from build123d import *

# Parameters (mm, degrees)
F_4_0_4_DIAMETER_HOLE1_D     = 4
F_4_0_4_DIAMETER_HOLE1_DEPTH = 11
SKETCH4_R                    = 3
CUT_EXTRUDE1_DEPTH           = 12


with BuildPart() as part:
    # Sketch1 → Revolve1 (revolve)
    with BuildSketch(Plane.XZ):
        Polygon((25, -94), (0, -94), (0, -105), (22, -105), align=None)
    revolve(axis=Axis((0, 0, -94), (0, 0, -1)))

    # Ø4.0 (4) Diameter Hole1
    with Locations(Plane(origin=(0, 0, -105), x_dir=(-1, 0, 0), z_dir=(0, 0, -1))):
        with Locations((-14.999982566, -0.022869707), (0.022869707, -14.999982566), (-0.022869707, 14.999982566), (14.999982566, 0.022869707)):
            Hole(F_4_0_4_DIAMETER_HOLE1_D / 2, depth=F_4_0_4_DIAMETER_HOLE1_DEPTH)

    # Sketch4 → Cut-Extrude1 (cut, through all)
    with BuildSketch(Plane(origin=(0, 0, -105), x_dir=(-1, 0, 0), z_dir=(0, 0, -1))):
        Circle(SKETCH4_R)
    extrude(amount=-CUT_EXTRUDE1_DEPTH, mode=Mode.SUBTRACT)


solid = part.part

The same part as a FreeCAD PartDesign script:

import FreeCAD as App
import Part
import Sketcher

V = App.Vector


def add_polygon(sketch, points):
    """Adds a closed chain of lines whose ends are joined by coincident constraints."""
    first, n = sketch.GeometryCount, len(points)
    for a, b in zip(points, points[1:] + points[:1]):
        sketch.addGeometry(Part.LineSegment(App.Vector(*a, 0), App.Vector(*b, 0)), False)
    for i in range(n):
        sketch.addConstraint(Sketcher.Constraint("Coincident", first + i, 2, first + (i + 1) % n, 1))

doc = App.newDocument("Part")
body = doc.addObject("PartDesign::Body", "Body")

sketch1 = body.newObject("Sketcher::SketchObject", "Sketch")
sketch1.AttachmentSupport = (doc.getObject("XZ_Plane"), [""])
sketch1.MapMode = "FlatFace"
add_polygon(sketch1, [(25, -94), (0, -94), (0, -105), (22, -105)])
sketch1.addConstraint([
    Sketcher.Constraint("Horizontal", 0),
    Sketcher.Constraint("Vertical", 1),
    Sketcher.Constraint("Horizontal", 2),
    Sketcher.Constraint("PointOnObject", 0, 2, -2),
    Sketcher.Constraint("DistanceX", 0, 2, 0, 1, 25.0),
    Sketcher.Constraint("DistanceX", 2, 1, 2, 2, 22.0),
    Sketcher.Constraint("DistanceY", 1, 2, 1, 1, 11.0),
    Sketcher.Constraint("DistanceY", 0, 2, -1, 1, 94.0),
])
revolution = body.newObject("PartDesign::Revolution", "Revolution")
revolution.Profile = sketch1
revolution.ReferenceAxis = (sketch1, ["V_Axis"])
revolution.Angle = 360

sketch2 = body.newObject("Sketcher::SketchObject", "Sketch001")
sketch2.AttachmentSupport = (doc.getObject("XY_Plane"), [""])
sketch2.MapMode = "FlatFace"
sketch2.AttachmentOffset = App.Placement(V(0, 0, -105), App.Rotation())
sketch2.addGeometry([
    Part.Circle(V(14.999983, -0.02287, 0), V(0, 0, 1), 2),
    Part.Circle(V(-0.02287, -14.999983, 0), V(0, 0, 1), 2),
    Part.Circle(V(0.02287, 14.999983, 0), V(0, 0, 1), 2),
    Part.Circle(V(-14.999983, 0.02287, 0), V(0, 0, 1), 2),
], False)
sketch2.addConstraint([
    Sketcher.Constraint("Equal", 0, 1),
    Sketcher.Constraint("Equal", 1, 2),
    Sketcher.Constraint("Equal", 2, 3),
    Sketcher.Constraint("Symmetric", 1, 3, 2, 3, -1, 1),
    Sketcher.Constraint("Symmetric", 0, 3, 3, 3, -1, 1),
    Sketcher.Constraint("Diameter", 0, 4.0),
    Sketcher.Constraint("DistanceY", 0, 3, -1, 1, 0.02287),
    Sketcher.Constraint("DistanceX", 1, 3, -1, 1, 0.02287),
    Sketcher.Constraint("DistanceX", -1, 1, 0, 3, 14.999983),
    Sketcher.Constraint("DistanceY", 1, 3, -1, 1, 14.999983),
])
doc.recompute()
hole = body.newObject("PartDesign::Hole", "Hole")
hole.Profile = sketch2
hole.ThreadType = "None"
hole.Diameter = 4
hole.DepthType = "Dimension"
hole.Depth = 11
hole.DrillPoint = "Flat"
hole.Reversed = True

sketch3 = body.newObject("Sketcher::SketchObject", "Sketch002")
sketch3.AttachmentSupport = (doc.getObject("XY_Plane"), [""])
sketch3.MapMode = "FlatFace"
sketch3.AttachmentOffset = App.Placement(V(0, 0, -105), App.Rotation())
sketch3.addGeometry(Part.Circle(V(0, 0, 0), V(0, 0, 1), 3), False)
sketch3.addConstraint([
    Sketcher.Constraint("Coincident", 0, 3, -1, 1),
    Sketcher.Constraint("Diameter", 0, 6.0),
])
pocket1 = body.newObject("PartDesign::Pocket", "Pocket")
pocket1.Profile = sketch3
pocket1.Type = "ThroughAll"
pocket1.Reversed = True

doc.recompute()
